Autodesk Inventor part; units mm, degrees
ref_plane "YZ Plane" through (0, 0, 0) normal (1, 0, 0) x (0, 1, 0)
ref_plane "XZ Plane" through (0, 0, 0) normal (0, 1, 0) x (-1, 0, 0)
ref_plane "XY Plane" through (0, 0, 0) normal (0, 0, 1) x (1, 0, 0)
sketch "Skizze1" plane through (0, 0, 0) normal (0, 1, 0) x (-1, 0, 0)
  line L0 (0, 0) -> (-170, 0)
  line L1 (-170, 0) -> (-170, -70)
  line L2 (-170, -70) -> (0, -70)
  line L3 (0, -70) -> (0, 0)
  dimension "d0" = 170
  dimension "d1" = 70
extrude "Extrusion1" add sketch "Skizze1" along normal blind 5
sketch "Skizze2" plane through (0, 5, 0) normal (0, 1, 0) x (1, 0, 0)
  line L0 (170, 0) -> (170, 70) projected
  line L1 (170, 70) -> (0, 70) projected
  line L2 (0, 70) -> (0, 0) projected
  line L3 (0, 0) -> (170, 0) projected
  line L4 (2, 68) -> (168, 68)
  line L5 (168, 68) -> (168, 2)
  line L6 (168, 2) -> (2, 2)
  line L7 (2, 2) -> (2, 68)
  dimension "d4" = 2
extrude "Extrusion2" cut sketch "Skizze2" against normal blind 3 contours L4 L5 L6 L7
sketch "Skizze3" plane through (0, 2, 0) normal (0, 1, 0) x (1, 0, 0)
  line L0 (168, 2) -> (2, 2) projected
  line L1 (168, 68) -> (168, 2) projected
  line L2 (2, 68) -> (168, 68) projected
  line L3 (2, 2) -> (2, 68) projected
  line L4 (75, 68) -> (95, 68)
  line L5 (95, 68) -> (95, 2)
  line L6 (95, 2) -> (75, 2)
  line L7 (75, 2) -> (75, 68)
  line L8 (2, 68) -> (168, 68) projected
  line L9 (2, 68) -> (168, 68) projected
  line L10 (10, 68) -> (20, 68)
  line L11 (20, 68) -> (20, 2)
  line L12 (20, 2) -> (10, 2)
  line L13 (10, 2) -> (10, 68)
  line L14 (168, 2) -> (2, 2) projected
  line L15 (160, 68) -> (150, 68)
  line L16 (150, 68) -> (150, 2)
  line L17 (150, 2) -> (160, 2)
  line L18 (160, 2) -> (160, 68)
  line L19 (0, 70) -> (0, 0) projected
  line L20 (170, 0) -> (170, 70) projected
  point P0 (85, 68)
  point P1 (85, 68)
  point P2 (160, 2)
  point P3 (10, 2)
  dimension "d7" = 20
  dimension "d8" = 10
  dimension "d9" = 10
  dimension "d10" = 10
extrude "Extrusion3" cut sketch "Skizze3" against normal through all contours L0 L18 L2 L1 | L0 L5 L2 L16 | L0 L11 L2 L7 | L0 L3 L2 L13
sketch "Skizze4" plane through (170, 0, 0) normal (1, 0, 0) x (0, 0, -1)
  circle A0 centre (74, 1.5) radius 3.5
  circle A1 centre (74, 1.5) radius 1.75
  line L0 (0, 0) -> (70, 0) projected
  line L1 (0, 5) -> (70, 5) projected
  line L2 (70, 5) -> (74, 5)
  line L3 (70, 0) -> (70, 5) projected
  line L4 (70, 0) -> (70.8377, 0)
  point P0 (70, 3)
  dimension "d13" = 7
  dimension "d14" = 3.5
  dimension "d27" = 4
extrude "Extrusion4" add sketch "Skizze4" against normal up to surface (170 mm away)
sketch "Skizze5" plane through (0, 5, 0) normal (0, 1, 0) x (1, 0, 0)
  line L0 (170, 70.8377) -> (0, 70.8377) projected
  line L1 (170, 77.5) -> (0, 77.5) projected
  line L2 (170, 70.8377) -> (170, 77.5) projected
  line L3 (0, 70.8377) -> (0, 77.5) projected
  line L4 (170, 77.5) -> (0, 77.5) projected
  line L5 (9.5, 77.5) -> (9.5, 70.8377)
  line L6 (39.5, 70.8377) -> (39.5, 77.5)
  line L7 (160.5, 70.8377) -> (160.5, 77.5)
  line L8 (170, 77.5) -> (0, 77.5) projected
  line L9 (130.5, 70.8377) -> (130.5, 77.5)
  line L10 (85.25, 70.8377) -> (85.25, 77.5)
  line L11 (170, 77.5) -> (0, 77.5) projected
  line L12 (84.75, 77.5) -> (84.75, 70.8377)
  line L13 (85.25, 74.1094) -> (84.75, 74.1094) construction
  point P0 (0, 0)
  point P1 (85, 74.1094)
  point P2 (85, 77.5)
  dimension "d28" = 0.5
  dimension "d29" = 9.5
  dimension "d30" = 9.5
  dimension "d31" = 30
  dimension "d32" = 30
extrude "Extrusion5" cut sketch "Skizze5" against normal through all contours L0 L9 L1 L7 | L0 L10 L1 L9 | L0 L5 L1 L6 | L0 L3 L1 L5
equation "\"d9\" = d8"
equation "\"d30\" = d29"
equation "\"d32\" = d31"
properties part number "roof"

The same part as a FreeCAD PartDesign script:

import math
import FreeCAD as App
import Part
import Sketcher

doc = App.newDocument("Part")
body = doc.addObject("PartDesign::Body", "Body")

# Sketch on XZ plane
sketch1 = body.newObject("Sketcher::SketchObject", "Sketch")
sketch1.AttachmentSupport = (doc.getObject("XZ_Plane"), [""])
sketch1.MapMode = "FlatFace"
sketch1.addGeometry([
    Part.LineSegment(App.Vector(0, -70, 0), App.Vector(0, 0, 0)),
    Part.LineSegment(App.Vector(0, 0, 0), App.Vector(170, 0, 0)),
    Part.LineSegment(App.Vector(170, 0, 0), App.Vector(170, -70, 0)),
    Part.LineSegment(App.Vector(170, -70, 0), App.Vector(0, -70, 0)),
], False)
sketch1.addConstraint([
    Sketcher.Constraint("Coincident", 0, 2, 1, 1),
    Sketcher.Constraint("Coincident", 1, 2, 2, 1),
    Sketcher.Constraint("Coincident", 2, 2, 3, 1),
    Sketcher.Constraint("Coincident", 3, 2, 0, 1),
    Sketcher.Constraint("Vertical", 0),
    Sketcher.Constraint("Horizontal", 1),
    Sketcher.Constraint("Vertical", 2),
    Sketcher.Constraint("Horizontal", 3),
    Sketcher.Constraint("Coincident", 0, 2, -1, 1),
    Sketcher.Constraint("DistanceX", 1, 1, 1, 2, 170.0),
    Sketcher.Constraint("DistanceY", 0, 1, 0, 2, 70.0),
])
pad1 = body.newObject("PartDesign::Pad", "Pad")
pad1.Profile = sketch1
pad1.Length = 5
pad1.Reversed = True

# Sketch on XZ plane
sketch2 = body.newObject("Sketcher::SketchObject", "Sketch001")
sketch2.AttachmentSupport = (doc.getObject("XZ_Plane"), [""])
sketch2.MapMode = "FlatFace"
sketch2.AttachmentOffset = App.Placement(App.Vector(0, 0, -5), App.Rotation())
sketch2.addGeometry([
    Part.LineSegment(App.Vector(168, -68, 0), App.Vector(2, -68, 0)),
    Part.LineSegment(App.Vector(2, -68, 0), App.Vector(2, -2, 0)),
    Part.LineSegment(App.Vector(2, -2, 0), App.Vector(168, -2, 0)),
    Part.LineSegment(App.Vector(168, -2, 0), App.Vector(168, -68, 0)),
], False)
sketch2.addConstraint([
    Sketcher.Constraint("Coincident", 0, 2, 1, 1),
    Sketcher.Constraint("Coincident", 1, 2, 2, 1),
    Sketcher.Constraint("Coincident", 2, 2, 3, 1),
    Sketcher.Constraint("Coincident", 3, 2, 0, 1),
    Sketcher.Constraint("Horizontal", 0),
    Sketcher.Constraint("Vertical", 1),
    Sketcher.Constraint("Horizontal", 2),
    Sketcher.Constraint("Vertical", 3),
    Sketcher.Constraint("DistanceX", -1, 1, 0, 2, 2.0),
    Sketcher.Constraint("DistanceY", 1, 2, -1, 1, 2.0),
    Sketcher.Constraint("DistanceX", 0, 2, 0, 1, 166.0),
    Sketcher.Constraint("DistanceY", 1, 1, 1, 2, 66.0),
])
pocket1 = body.newObject("PartDesign::Pocket", "Pocket")
pocket1.Profile = sketch2
pocket1.Length = 3
pocket1.Reversed = True

# Sketch on XZ plane
sketch3 = body.newObject("Sketcher::SketchObject", "Sketch002")
sketch3.AttachmentSupport = (doc.getObject("XZ_Plane"), [""])
sketch3.MapMode = "FlatFace"
sketch3.AttachmentOffset = App.Placement(App.Vector(0, 0, -2), App.Rotation())
sketch3.addGeometry([
    Part.LineSegment(App.Vector(160, -2, 0), App.Vector(168, -2, 0)),  # 0
    Part.LineSegment(App.Vector(168, -2, 0), App.Vector(168, -68, 0)),  # 1
    Part.LineSegment(App.Vector(168, -68, 0), App.Vector(160, -68, 0)),  # 2
    Part.LineSegment(App.Vector(160, -68, 0), App.Vector(160, -2, 0)),  # 3
    Part.LineSegment(App.Vector(95, -2, 0), App.Vector(150, -2, 0)),  # 4
    Part.LineSegment(App.Vector(150, -2, 0), App.Vector(150, -68, 0)),  # 5
    Part.LineSegment(App.Vector(150, -68, 0), App.Vector(95, -68, 0)),  # 6
    Part.LineSegment(App.Vector(95, -68, 0), App.Vector(95, -2, 0)),  # 7
    Part.LineSegment(App.Vector(20, -2, 0), App.Vector(75, -2, 0)),  # 8
    Part.LineSegment(App.Vector(75, -2, 0), App.Vector(75, -68, 0)),  # 9
    Part.LineSegment(App.Vector(75, -68, 0), App.Vector(20, -68, 0)),  # 10
    Part.LineSegment(App.Vector(20, -68, 0), App.Vector(20, -2, 0)),  # 11
    Part.LineSegment(App.Vector(2, -2, 0), App.Vector(10, -2, 0)),  # 12
    Part.LineSegment(App.Vector(10, -2, 0), App.Vector(10, -68, 0)),  # 13
    Part.LineSegment(App.Vector(10, -68, 0), App.Vector(2, -68, 0)),  # 14
    Part.LineSegment(App.Vector(2, -68, 0), App.Vector(2, -2, 0)),  # 15
], False)
sketch3.addConstraint([
    Sketcher.Constraint("Coincident", 0, 2, 1, 1),
    Sketcher.Constraint("Coincident", 1, 2, 2, 1),
    Sketcher.Constraint("Coincident", 2, 2, 3, 1),
    Sketcher.Constraint("Coincident", 3, 2, 0, 1),
    Sketcher.Constraint("Coincident", 4, 2, 5, 1),
    Sketcher.Constraint("Coincident", 5, 2, 6, 1),
    Sketcher.Constraint("Coincident", 6, 2, 7, 1),
    Sketcher.Constraint("Coincident", 7, 2, 4, 1),
    Sketcher.Constraint("Coincident", 8, 2, 9, 1),
    Sketcher.Constraint("Coincident", 9, 2, 10, 1),
    Sketcher.Constraint("Coincident", 10, 2, 11, 1),
    Sketcher.Constraint("Coincident", 11, 2, 8, 1),
    Sketcher.Constraint("Coincident", 12, 2, 13, 1),
    Sketcher.Constraint("Coincident", 13, 2, 14, 1),
    Sketcher.Constraint("Coincident", 14, 2, 15, 1),
    Sketcher.Constraint("Coincident", 15, 2, 12, 1),
    Sketcher.Constraint("Horizontal", 0),
    Sketcher.Constraint("Vertical", 1),
    Sketcher.Constraint("Horizontal", 2),
    Sketcher.Constraint("Vertical", 3),
    Sketcher.Constraint("Horizontal", 4),
    Sketcher.Constraint("Vertical", 5),
    Sketcher.Constraint("Horizontal", 6),
    Sketcher.Constraint("Vertical", 7),
    Sketcher.Constraint("Horizontal", 8),
    Sketcher.Constraint("Vertical", 9),
    Sketcher.Constraint("Horizontal", 10),
    Sketcher.Constraint("Vertical", 11),
    Sketcher.Constraint("Horizontal", 12),
    Sketcher.Constraint("Vertical", 13),
    Sketcher.Constraint("Horizontal", 14),
    Sketcher.Constraint("Vertical", 15),
    Sketcher.Constraint("Horizontal", 3, 2, 4, 2),
    Sketcher.Constraint("Horizontal", 2, 2, 5, 2),
    Sketcher.Constraint("Horizontal", 7, 2, 8, 2),
    Sketcher.Constraint("Horizontal", 6, 2, 9, 2),
    Sketcher.Constraint("Horizontal", 11, 2, 12, 2),
    Sketcher.Constraint("Horizontal", 10, 2, 13, 2),
    Sketcher.Constraint("Equal", 6, 8),
    Sketcher.Constraint("Equal", 2, 12),
    Sketcher.Constraint("DistanceX", -1, 1, 10, 2, 20.0),
    Sketcher.Constraint("DistanceX", -1, 1, 12, 2, 10.0),
    Sketcher.Constraint("DistanceX", 4, 2, 3, 2, 10.0),
    Sketcher.Constraint("DistanceX", 8, 2, 7, 2, 20.0),
    Sketcher.Constraint("DistanceX", 0, 1, 0, 2, 8.0),
    Sketcher.Constraint("DistanceX", 4, 1, 4, 2, 55.0),
    Sketcher.Constraint("DistanceY", 1, 2, 1, 1, 66.0),
    Sketcher.Constraint("DistanceY", 0, 2, -1, 1, 2.0),
])
pocket2 = body.newObject("PartDesign::Pocket", "Pocket001")
pocket2.Profile = sketch3
pocket2.Type = "ThroughAll"
pocket2.Reversed = True

# Sketch on YZ plane
sketch4 = body.newObject("Sketcher::SketchObject", "Sketch003")
sketch4.AttachmentSupport = (doc.getObject("YZ_Plane"), [""])
sketch4.MapMode = "FlatFace"
sketch4.AttachmentOffset = App.Placement(App.Vector(0, 0, 170), App.Rotation())
sketch4.addGeometry([
    Part.ArcOfCircle(Part.Circle(App.Vector(1.5, -74, 0), App.Vector(0, 0, 1), 3.5), math.radians(115), math.radians(360)),  # 0
    Part.LineSegment(App.Vector(5, -74, 0), App.Vector(5, -70, 0)),  # 1
    Part.LineSegment(App.Vector(5, -70, 0), App.Vector(0, -70, 0)),  # 2
    Part.LineSegment(App.Vector(0, -70, 0), App.Vector(0, -70.8, 0)),  # 3
    Part.Circle(App.Vector(1.5, -74, 0), App.Vector(0, 0, 1), 1.8),  # 4
], False)
sketch4.addConstraint([
    Sketcher.Constraint("Tangent", 0, 2, 1, 1),
    Sketcher.Constraint("Coincident", 1, 2, 2, 1),
    Sketcher.Constraint("Coincident", 2, 2, 3, 1),
    Sketcher.Constraint("Coincident", 3, 2, 0, 1),
    Sketcher.Constraint("Vertical", 1),
    Sketcher.Constraint("Horizontal", 2),
    Sketcher.Constraint("Vertical", 3),
    Sketcher.Constraint("Coincident", 4, 3, 0, 3),
    Sketcher.Constraint("PointOnObject", 2, 2, -2),
    Sketcher.Constraint("Diameter", 4, 3.5),
    Sketcher.Constraint("Radius", 0, 3.5),
    Sketcher.Constraint("DistanceY", 1, 1, 1, 2, 4.0),
    Sketcher.Constraint("DistanceX", 2, 2, 2, 1, 5.0),
    Sketcher.Constraint("DistanceY", 0, 3, -1, 1, 74.0),
])
pad2 = body.newObject("PartDesign::Pad", "Pad001")
pad2.Profile = sketch4
pad2.Length = 170
pad2.Reversed = True

# Sketch on XZ plane
sketch5 = body.newObject("Sketcher::SketchObject", "Sketch004")
sketch5.AttachmentSupport = (doc.getObject("XZ_Plane"), [""])
sketch5.MapMode = "FlatFace"
sketch5.AttachmentOffset = App.Placement(App.Vector(0, 0, -5), App.Rotation())
sketch5.addGeometry([
    Part.LineSegment(App.Vector(160, -71, 0), App.Vector(160, -78, 0)),  # 0
    Part.LineSegment(App.Vector(160, -78, 0), App.Vector(85, -78, 0)),  # 1
    Part.LineSegment(App.Vector(85, -78, 0), App.Vector(85, -71, 0)),  # 2
    Part.LineSegment(App.Vector(85, -71, 0), App.Vector(160, -71, 0)),  # 3
    Part.LineSegment(App.Vector(40, -71, 0), App.Vector(40, -78, 0)),  # 4
    Part.LineSegment(App.Vector(40, -78, 0), App.Vector(0, -78, 0)),  # 5
    Part.LineSegment(App.Vector(0, -78, 0), App.Vector(0, -71, 0)),  # 6
    Part.LineSegment(App.Vector(0, -71, 0), App.Vector(40, -71, 0)),  # 7
], False)
sketch5.addConstraint([
    Sketcher.Constraint("Coincident", 0, 2, 1, 1),
    Sketcher.Constraint("Coincident", 1, 2, 2, 1),
    Sketcher.Constraint("Coincident", 2, 2, 3, 1),
    Sketcher.Constraint("Coincident", 3, 2, 0, 1),
    Sketcher.Constraint("Coincident", 4, 2, 5, 1),
    Sketcher.Constraint("Coincident", 5, 2, 6, 1),
    Sketcher.Constraint("Coincident", 6, 2, 7, 1),
    Sketcher.Constraint("Coincident", 7, 2, 4, 1),
    Sketcher.Constraint("Vertical", 0),
    Sketcher.Constraint("Horizontal", 1),
    Sketcher.Constraint("Vertical", 2),
    Sketcher.Constraint("Horizontal", 3),
    Sketcher.Constraint("Vertical", 4),
    Sketcher.Constraint("Horizontal", 5),
    Sketcher.Constraint("Vertical", 6),
    Sketcher.Constraint("Horizontal", 7),
    Sketcher.Constraint("PointOnObject", 5, 2, -2),
    Sketcher.Constraint("Horizontal", 1, 2, 4, 2),
    Sketcher.Constraint("Horizontal", 3, 2, 6, 2),
    Sketcher.Constraint("DistanceX", 5, 2, 5, 1, 39.5),
    Sketcher.Constraint("DistanceX", 4, 2, 0, 2, 121.0),
    Sketcher.Constraint("DistanceX", 1, 2, 1, 1, 75.25),
    Sketcher.Constraint("DistanceY", 0, 2, -1, 1, 77.5),
    Sketcher.Constraint("DistanceY", 0, 2, 0, 1, 6.6623),
])
pocket3 = body.newObject("PartDesign::Pocket", "Pocket002")
pocket3.Profile = sketch5
pocket3.Type = "ThroughAll"
pocket3.Reversed = True

doc.recompute()
